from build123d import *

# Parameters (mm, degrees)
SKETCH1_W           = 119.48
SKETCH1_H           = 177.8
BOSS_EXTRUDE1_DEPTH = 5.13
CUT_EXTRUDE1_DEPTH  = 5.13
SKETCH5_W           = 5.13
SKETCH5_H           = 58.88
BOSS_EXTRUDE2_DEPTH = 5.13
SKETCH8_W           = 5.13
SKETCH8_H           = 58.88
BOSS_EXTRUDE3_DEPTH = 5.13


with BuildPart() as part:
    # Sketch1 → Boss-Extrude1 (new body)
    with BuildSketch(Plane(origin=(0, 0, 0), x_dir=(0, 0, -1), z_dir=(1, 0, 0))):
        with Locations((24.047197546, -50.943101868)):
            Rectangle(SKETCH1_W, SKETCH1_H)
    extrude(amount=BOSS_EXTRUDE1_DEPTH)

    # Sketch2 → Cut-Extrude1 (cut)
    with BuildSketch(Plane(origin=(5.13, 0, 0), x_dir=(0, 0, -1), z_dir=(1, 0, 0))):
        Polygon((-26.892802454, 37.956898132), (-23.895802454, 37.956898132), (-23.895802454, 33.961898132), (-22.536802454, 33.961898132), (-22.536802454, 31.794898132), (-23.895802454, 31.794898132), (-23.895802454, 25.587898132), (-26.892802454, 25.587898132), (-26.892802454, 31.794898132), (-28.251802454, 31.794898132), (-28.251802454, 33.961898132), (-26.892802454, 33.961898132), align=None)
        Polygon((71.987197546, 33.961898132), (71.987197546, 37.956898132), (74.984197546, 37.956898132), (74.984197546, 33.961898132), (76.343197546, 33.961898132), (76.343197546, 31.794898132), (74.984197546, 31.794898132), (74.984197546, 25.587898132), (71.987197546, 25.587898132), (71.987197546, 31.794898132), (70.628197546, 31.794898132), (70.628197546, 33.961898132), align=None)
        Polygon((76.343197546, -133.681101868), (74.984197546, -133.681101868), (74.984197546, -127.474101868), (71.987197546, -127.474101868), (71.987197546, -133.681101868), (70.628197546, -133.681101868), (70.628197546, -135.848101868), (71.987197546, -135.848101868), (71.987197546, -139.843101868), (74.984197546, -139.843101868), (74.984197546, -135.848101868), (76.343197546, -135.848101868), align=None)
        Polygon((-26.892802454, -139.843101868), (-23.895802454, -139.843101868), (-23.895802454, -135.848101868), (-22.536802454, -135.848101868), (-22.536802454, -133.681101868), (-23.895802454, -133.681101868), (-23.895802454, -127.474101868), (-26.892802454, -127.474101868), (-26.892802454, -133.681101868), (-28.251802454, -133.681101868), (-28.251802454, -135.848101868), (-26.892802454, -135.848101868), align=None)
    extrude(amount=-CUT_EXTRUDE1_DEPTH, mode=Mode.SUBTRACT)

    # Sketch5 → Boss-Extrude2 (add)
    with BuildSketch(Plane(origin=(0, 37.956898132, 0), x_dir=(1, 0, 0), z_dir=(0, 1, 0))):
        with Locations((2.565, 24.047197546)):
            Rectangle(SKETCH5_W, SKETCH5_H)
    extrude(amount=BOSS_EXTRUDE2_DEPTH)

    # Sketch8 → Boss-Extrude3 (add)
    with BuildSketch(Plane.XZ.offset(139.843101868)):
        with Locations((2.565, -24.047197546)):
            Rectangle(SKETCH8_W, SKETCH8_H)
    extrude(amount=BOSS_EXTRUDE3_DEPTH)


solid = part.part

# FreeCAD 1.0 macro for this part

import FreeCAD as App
import Part
import Sketcher

V = App.Vector
Q = App.Units.Quantity

doc = App.newDocument("Part")
body = doc.addObject("PartDesign::Body", "Body")

# Sketch on YZ plane
sketch1 = body.newObject("Sketcher::SketchObject", "Sketch")
sketch1.AttachmentSupport = (doc.getObject("YZ_Plane"), [""])
sketch1.MapMode = "FlatFace"
sketch1.addGeometry(Part.LineSegment(V(38, 36, 0), V(-140, 36, 0)), False)
sketch1.addGeometry(Part.LineSegment(V(-140, 36, 0), V(-140, -84, 0)), False)
sketch1.addGeometry(Part.LineSegment(V(-140, -84, 0), V(38, -84, 0)), False)
sketch1.addGeometry(Part.LineSegment(V(38, -84, 0), V(38, 36, 0)), False)
sketch1.addConstraint(Sketcher.Constraint("Coincident", 0, 2, 1, 1))
sketch1.addConstraint(Sketcher.Constraint("Coincident", 1, 2, 2, 1))
sketch1.addConstraint(Sketcher.Constraint("Coincident", 2, 2, 3, 1))
sketch1.addConstraint(Sketcher.Constraint("Coincident", 3, 2, 0, 1))
sketch1.addConstraint(Sketcher.Constraint("Horizontal", 0))
sketch1.addConstraint(Sketcher.Constraint("Vertical", 1))
sketch1.addConstraint(Sketcher.Constraint("Horizontal", 2))
sketch1.addConstraint(Sketcher.Constraint("Vertical", 3))
sketch1.addConstraint(Sketcher.Constraint("DistanceX", 0, 2, 0, 1, Q("7 in")))
sketch1.addConstraint(Sketcher.Constraint("DistanceY", 1, 2, 1, 1, 119.48))
sketch1.addConstraint(Sketcher.Constraint("DistanceX", 0, 2, -1, 1, 139.843102))
sketch1.addConstraint(Sketcher.Constraint("DistanceY", -1, 1, 0, 2, 35.692802))
pad1 = body.newObject("PartDesign::Pad", "Pad")
pad1.Profile = sketch1
pad1.Length = 5.13

# Sketch on YZ plane
sketch2 = body.newObject("Sketcher::SketchObject", "Sketch001")
sketch2.AttachmentSupport = (doc.getObject("YZ_Plane"), [""])
sketch2.MapMode = "FlatFace"
sketch2.AttachmentOffset = App.Placement(V(0, 0, 5.13), App.Rotation())
sketch2.addGeometry(Part.LineSegment(V(38, 23.9, 0), V(38, 26.9, 0)), False)
sketch2.addGeometry(Part.LineSegment(V(38, 26.9, 0), V(34, 26.9, 0)), False)
sketch2.addGeometry(Part.LineSegment(V(34, 26.9, 0), V(34, 28.3, 0)), False)
sketch2.addGeometry(Part.LineSegment(V(34, 28.3, 0), V(31.8, 28.3, 0)), False)
sketch2.addGeometry(Part.LineSegment(V(31.8, 28.3, 0), V(31.8, 26.9, 0)), False)
sketch2.addGeometry(Part.LineSegment(V(31.8, 26.9, 0), V(25.6, 26.9, 0)), False)
sketch2.addGeometry(Part.LineSegment(V(25.6, 26.9, 0), V(25.6, 23.9, 0)), False)
sketch2.addGeometry(Part.LineSegment(V(25.6, 23.9, 0), V(31.8, 23.9, 0)), False)
sketch2.addGeometry(Part.LineSegment(V(31.8, 23.9, 0), V(31.8, 22.5, 0)), False)
sketch2.addGeometry(Part.LineSegment(V(31.8, 22.5, 0), V(34, 22.5, 0)), False)
sketch2.addGeometry(Part.LineSegment(V(34, 22.5, 0), V(34, 23.9, 0)), False)
sketch2.addGeometry(Part.LineSegment(V(34, 23.9, 0), V(38, 23.9, 0)), False)
sketch2.addGeometry(Part.LineSegment(V(38, -72, 0), V(34, -72, 0)), False)
sketch2.addGeometry(Part.LineSegment(V(34, -72, 0), V(34, -70.6, 0)), False)
sketch2.addGeometry(Part.LineSegment(V(34, -70.6, 0), V(31.8, -70.6, 0)), False)
sketch2.addGeometry(Part.LineSegment(V(31.8, -70.6, 0), V(31.8, -72, 0)), False)
sketch2.addGeometry(Part.LineSegment(V(31.8, -72, 0), V(25.6, -72, 0)), False)
sketch2.addGeometry(Part.LineSegment(V(25.6, -72, 0), V(25.6, -75, 0)), False)
sketch2.addGeometry(Part.LineSegment(V(25.6, -75, 0), V(31.8, -75, 0)), False)
sketch2.addGeometry(Part.LineSegment(V(31.8, -75, 0), V(31.8, -76.3, 0)), False)
sketch2.addGeometry(Part.LineSegment(V(31.8, -76.3, 0), V(34, -76.3, 0)), False)
sketch2.addGeometry(Part.LineSegment(V(34, -76.3, 0), V(34, -75, 0)), False)
sketch2.addGeometry(Part.LineSegment(V(34, -75, 0), V(38, -75, 0)), False)
sketch2.addGeometry(Part.LineSegment(V(38, -75, 0), V(38, -72, 0)), False)
sketch2.addGeometry(Part.LineSegment(V(-133.7, -76.3, 0), V(-133.7, -75, 0)), False)
sketch2.addGeometry(Part.LineSegment(V(-133.7, -75, 0), V(-127.5, -75, 0)), False)
sketch2.addGeometry(Part.LineSegment(V(-127.5, -75, 0), V(-127.5, -72, 0)), False)
sketch2.addGeometry(Part.LineSegment(V(-127.5, -72, 0), V(-133.7, -72, 0)), False)
sketch2.addGeometry(Part.LineSegment(V(-133.7, -72, 0), V(-133.7, -70.6, 0)), False)
sketch2.addGeometry(Part.LineSegment(V(-133.7, -70.6, 0), V(-135.8, -70.6, 0)), False)
sketch2.addGeometry(Part.LineSegment(V(-135.8, -70.6, 0), V(-135.8, -72, 0)), False)
sketch2.addGeometry(Part.LineSegment(V(-135.8, -72, 0), V(-139.8, -72, 0)), False)
sketch2.addGeometry(Part.LineSegment(V(-139.8, -72, 0), V(-139.8, -75, 0)), False)
sketch2.addGeometry(Part.LineSegment(V(-139.8, -75, 0), V(-135.8, -75, 0)), False)
sketch2.addGeometry(Part.LineSegment(V(-135.8, -75, 0), V(-135.8, -76.3, 0)), False)
sketch2.addGeometry(Part.LineSegment(V(-135.8, -76.3, 0), V(-133.7, -76.3, 0)), False)
sketch2.addGeometry(Part.LineSegment(V(-139.8, 26.9, 0), V(-139.8, 23.9, 0)), False)
sketch2.addGeometry(Part.LineSegment(V(-139.8, 23.9, 0), V(-135.8, 23.9, 0)), False)
sketch2.addGeometry(Part.LineSegment(V(-135.8, 23.9, 0), V(-135.8, 22.5, 0)), False)
sketch2.addGeometry(Part.LineSegment(V(-135.8, 22.5, 0), V(-133.7, 22.5, 0)), False)
sketch2.addGeometry(Part.LineSegment(V(-133.7, 22.5, 0), V(-133.7, 23.9, 0)), False)
sketch2.addGeometry(Part.LineSegment(V(-133.7, 23.9, 0), V(-127.5, 23.9, 0)), False)
sketch2.addGeometry(Part.LineSegment(V(-127.5, 23.9, 0), V(-127.5, 26.9, 0)), False)
sketch2.addGeometry(Part.LineSegment(V(-127.5, 26.9, 0), V(-133.7, 26.9, 0)), False)
sketch2.addGeometry(Part.LineSegment(V(-133.7, 26.9, 0), V(-133.7, 28.3, 0)), False)
sketch2.addGeometry(Part.LineSegment(V(-133.7, 28.3, 0), V(-135.8, 28.3, 0)), False)
sketch2.addGeometry(Part.LineSegment(V(-135.8, 28.3, 0), V(-135.8, 26.9, 0)), False)
sketch2.addGeometry(Part.LineSegment(V(-135.8, 26.9, 0), V(-139.8, 26.9, 0)), False)
sketch2.addConstraint(Sketcher.Constraint("Coincident", 0, 2, 1, 1))
sketch2.addConstraint(Sketcher.Constraint("Coincident", 1, 2, 2, 1))
sketch2.addConstraint(Sketcher.Constraint("Coincident", 2, 2, 3, 1))
sketch2.addConstraint(Sketcher.Constraint("Coincident", 3, 2, 4, 1))
sketch2.addConstraint(Sketcher.Constraint("Coincident", 4, 2, 5, 1))
sketch2.addConstraint(Sketcher.Constraint("Coincident", 5, 2, 6, 1))
sketch2.addConstraint(Sketcher.Constraint("Coincident", 6, 2, 7, 1))
sketch2.addConstraint(Sketcher.Constraint("Coincident", 7, 2, 8, 1))
sketch2.addConstraint(Sketcher.Constraint("Coincident", 8, 2, 9, 1))
sketch2.addConstraint(Sketcher.Constraint("Coincident", 9, 2, 10, 1))
sketch2.addConstraint(Sketcher.Constraint("Coincident", 10, 2, 11, 1))
sketch2.addConstraint(Sketcher.Constraint("Coincident", 11, 2, 0, 1))
sketch2.addConstraint(Sketcher.Constraint("Coincident", 12, 2, 13, 1))
sketch2.addConstraint(Sketcher.Constraint("Coincident", 13, 2, 14, 1))
sketch2.addConstraint(Sketcher.Constraint("Coincident", 14, 2, 15, 1))
sketch2.addConstraint(Sketcher.Constraint("Coincident", 15, 2, 16, 1))
sketch2.addConstraint(Sketcher.Constraint("Coincident", 16, 2, 17, 1))
sketch2.addConstraint(Sketcher.Constraint("Coincident", 17, 2, 18, 1))
sketch2.addConstraint(Sketcher.Constraint("Coincident", 18, 2, 19, 1))
sketch2.addConstraint(Sketcher.Constraint("Coincident", 19, 2, 20, 1))
sketch2.addConstraint(Sketcher.Constraint("Coincident", 20, 2, 21, 1))
sketch2.addConstraint(Sketcher.Constraint("Coincident", 21, 2, 22, 1))
sketch2.addConstraint(Sketcher.Constraint("Coincident", 22, 2, 23, 1))
sketch2.addConstraint(Sketcher.Constraint("Coincident", 23, 2, 12, 1))
sketch2.addConstraint(Sketcher.Constraint("Coincident", 24, 2, 25, 1))
sketch2.addConstraint(Sketcher.Constraint("Coincident", 25, 2, 26, 1))
sketch2.addConstraint(Sketcher.Constraint("Coincident", 26, 2, 27, 1))
sketch2.addConstraint(Sketcher.Constraint("Coincident", 27, 2, 28, 1))
sketch2.addConstraint(Sketcher.Constraint("Coincident", 28, 2, 29, 1))
sketch2.addConstraint(Sketcher.Constraint("Coincident", 29, 2, 30, 1))
sketch2.addConstraint(Sketcher.Constraint("Coincident", 30, 2, 31, 1))
sketch2.addConstraint(Sketcher.Constraint("Coincident", 31, 2, 32, 1))
sketch2.addConstraint(Sketcher.Constraint("Coincident", 32, 2, 33, 1))
sketch2.addConstraint(Sketcher.Constraint("Coincident", 33, 2, 34, 1))
sketch2.addConstraint(Sketcher.Constraint("Coincident", 34, 2, 35, 1))
sketch2.addConstraint(Sketcher.Constraint("Coincident", 35, 2, 24, 1))
sketch2.addConstraint(Sketcher.Constraint("Coincident", 36, 2, 37, 1))
sketch2.addConstraint(Sketcher.Constraint("Coincident", 37, 2, 38, 1))
sketch2.addConstraint(Sketcher.Constraint("Coincident", 38, 2, 39, 1))
sketch2.addConstraint(Sketcher.Constraint("Coincident", 39, 2, 40, 1))
sketch2.addConstraint(Sketcher.Constraint("Coincident", 40, 2, 41, 1))
sketch2.addConstraint(Sketcher.Constraint("Coincident", 41, 2, 42, 1))
sketch2.addConstraint(Sketcher.Constraint("Coincident", 42, 2, 43, 1))
sketch2.addConstraint(Sketcher.Constraint("Coincident", 43, 2, 44, 1))
sketch2.addConstraint(Sketcher.Constraint("Coincident", 44, 2, 45, 1))
sketch2.addConstraint(Sketcher.Constraint("Coincident", 45, 2, 46, 1))
sketch2.addConstraint(Sketcher.Constraint("Coincident", 46, 2, 47, 1))
sketch2.addConstraint(Sketcher.Constraint("Coincident", 47, 2, 36, 1))
sketch2.addConstraint(Sketcher.Constraint("Vertical", 0))
sketch2.addConstraint(Sketcher.Constraint("Horizontal", 1))
sketch2.addConstraint(Sketcher.Constraint("Vertical", 2))
sketch2.addConstraint(Sketcher.Constraint("Horizontal", 3))
sketch2.addConstraint(Sketcher.Constraint("Vertical", 4))
sketch2.addConstraint(Sketcher.Constraint("Horizontal", 5))
sketch2.addConstraint(Sketcher.Constraint("Vertical", 6))
sketch2.addConstraint(Sketcher.Constraint("Horizontal", 7))
sketch2.addConstraint(Sketcher.Constraint("Vertical", 8))
sketch2.addConstraint(Sketcher.Constraint("Horizontal", 9))
sketch2.addConstraint(Sketcher.Constraint("Vertical", 10))
sketch2.addConstraint(Sketcher.Constraint("Horizontal", 11))
sketch2.addConstraint(Sketcher.Constraint("Horizontal", 12))
sketch2.addConstraint(Sketcher.Constraint("Vertical", 13))
sketch2.addConstraint(Sketcher.Constraint("Horizontal", 14))
sketch2.addConstraint(Sketcher.Constraint("Vertical", 15))
sketch2.addConstraint(Sketcher.Constraint("Horizontal", 16))
sketch2.addConstraint(Sketcher.Constraint("Vertical", 17))
sketch2.addConstraint(Sketcher.Constraint("Horizontal", 18))
sketch2.addConstraint(Sketcher.Constraint("Vertical", 19))
sketch2.addConstraint(Sketcher.Constraint("Horizontal", 20))
sketch2.addConstraint(Sketcher.Constraint("Vertical", 21))
sketch2.addConstraint(Sketcher.Constraint("Horizontal", 22))
sketch2.addConstraint(Sketcher.Constraint("Vertical", 23))
sketch2.addConstraint(Sketcher.Constraint("Vertical", 24))
sketch2.addConstraint(Sketcher.Constraint("Horizontal", 25))
sketch2.addConstraint(Sketcher.Constraint("Vertical", 26))
sketch2.addConstraint(Sketcher.Constraint("Horizontal", 27))
sketch2.addConstraint(Sketcher.Constraint("Vertical", 28))
sketch2.addConstraint(Sketcher.Constraint("Horizontal", 29))
sketch2.addConstraint(Sketcher.Constraint("Vertical", 30))
sketch2.addConstraint(Sketcher.Constraint("Horizontal", 31))
sketch2.addConstraint(Sketcher.Constraint("Vertical", 32))
sketch2.addConstraint(Sketcher.Constraint("Horizontal", 33))
sketch2.addConstraint(Sketcher.Constraint("Vertical", 34))
sketch2.addConstraint(Sketcher.Constraint("Horizontal", 35))
sketch2.addConstraint(Sketcher.Constraint("Vertical", 36))
sketch2.addConstraint(Sketcher.Constraint("Horizontal", 37))
sketch2.addConstraint(Sketcher.Constraint("Vertical", 38))
sketch2.addConstraint(Sketcher.Constraint("Horizontal", 39))
sketch2.addConstraint(Sketcher.Constraint("Vertical", 40))
sketch2.addConstraint(Sketcher.Constraint("Horizontal", 41))
sketch2.addConstraint(Sketcher.Constraint("Vertical", 42))
sketch2.addConstraint(Sketcher.Constraint("Horizontal", 43))
sketch2.addConstraint(Sketcher.Constraint("Vertical", 44))
sketch2.addConstraint(Sketcher.Constraint("Horizontal", 45))
sketch2.addConstraint(Sketcher.Constraint("Vertical", 46))
sketch2.addConstraint(Sketcher.Constraint("Horizontal", 47))
sketch2.addConstraint(Sketcher.Constraint("Horizontal", 1, 2, 4, 2))
sketch2.addConstraint(Sketcher.Constraint("Horizontal", 7, 2, 10, 2))
sketch2.addConstraint(Sketcher.Constraint("Horizontal", 12, 2, 15, 2))
sketch2.addConstraint(Sketcher.Constraint("Horizontal", 18, 2, 21, 2))
sketch2.addConstraint(Sketcher.Constraint("Horizontal", 22, 2, 24, 2))
sketch2.addConstraint(Sketcher.Constraint("Horizontal", 23, 2, 26, 2))
sketch2.addConstraint(Sketcher.Constraint("Horizontal", 14, 2, 28, 2))
sketch2.addConstraint(Sketcher.Constraint("Horizontal", 27, 2, 30, 2))
sketch2.addConstraint(Sketcher.Constraint("Horizontal", 25, 2, 32, 2))
sketch2.addConstraint(Sketcher.Constraint("Horizontal", 20, 2, 34, 2))
sketch2.addConstraint(Sketcher.Constraint("Horizontal", 11, 2, 36, 2))
sketch2.addConstraint(Sketcher.Constraint("Horizontal", 9, 2, 38, 2))
sketch2.addConstraint(Sketcher.Constraint("Horizontal", 37, 2, 40, 2))
sketch2.addConstraint(Sketcher.Constraint("Horizontal", 5, 2, 42, 2))
sketch2.addConstraint(Sketcher.Constraint("Horizontal", 3, 2, 44, 2))
sketch2.addConstraint(Sketcher.Constraint("Horizontal", 43, 2, 46, 2))
sketch2.addConstraint(Sketcher.Constraint("Vertical", 4, 2, 7, 2))
sketch2.addConstraint(Sketcher.Constraint("Vertical", 2, 2, 9, 2))
sketch2.addConstraint(Sketcher.Constraint("Vertical", 10, 2, 12, 2))
sketch2.addConstraint(Sketcher.Constraint("Vertical", 8, 2, 14, 2))
sketch2.addConstraint(Sketcher.Constraint("Vertical", 6, 2, 16, 2))
sketch2.addConstraint(Sketcher.Constraint("Vertical", 15, 2, 18, 2))
sketch2.addConstraint(Sketcher.Constraint("Vertical", 13, 2, 20, 2))
sketch2.addConstraint(Sketcher.Constraint("Vertical", 11, 2, 22, 2))
sketch2.addConstraint(Sketcher.Constraint("Vertical", 24, 2, 27, 2))
sketch2.addConstraint(Sketcher.Constraint("Vertical", 30, 2, 33, 2))
sketch2.addConstraint(Sketcher.Constraint("Vertical", 32, 2, 36, 2))
sketch2.addConstraint(Sketcher.Constraint("Vertical", 34, 2, 37, 2))
sketch2.addConstraint(Sketcher.Constraint("Vertical", 35, 2, 39, 2))
sketch2.addConstraint(Sketcher.Constraint("Vertical", 26, 2, 41, 2))
sketch2.addConstraint(Sketcher.Constraint("Vertical", 40, 2, 43, 2))
sketch2.addConstraint(Sketcher.Constraint("Vertical", 38, 2, 45, 2))
sketch2.addConstraint(Sketcher.Constraint("Equal", 18, 25))
sketch2.addConstraint(Sketcher.Constraint("Equal", 20, 29))
sketch2.addConstraint(Sketcher.Constraint("Equal", 22, 31))
sketch2.addConstraint(Sketcher.Constraint("Equal", 4, 8))
sketch2.addConstraint(Sketcher.Constraint("Equal", 10, 13))
sketch2.addConstraint(Sketcher.Constraint("Equal", 6, 17))
sketch2.addConstraint(Sketcher.Constraint("Equal", 15, 19))
sketch2.addConstraint(Sketcher.Constraint("DistanceY", 8, 2, 3, 2, Q("0.225 in")))
sketch2.addConstraint(Sketcher.Constraint("DistanceX", 1, 2, 1, 1, 3.995))
sketch2.addConstraint(Sketcher.Constraint("DistanceX", 3, 2, 3, 1, 2.167))
sketch2.addConstraint(Sketcher.Constraint("DistanceX", 5, 2, 5, 1, 6.207))
sketch2.addConstraint(Sketcher.Constraint("DistanceY", 0, 1, 0, 2, 2.997))
sketch2.addConstraint(Sketcher.Constraint("DistanceX", -1, 1, 0, 2, 37.956898))
sketch2.addConstraint(Sketcher.Constraint("DistanceX", 24, 2, -1, 1, 133.681102))
sketch2.addConstraint(Sketcher.Constraint("DistanceY", 12, 2, 9, 2, 94.524))
sketch2.addConstraint(Sketcher.Constraint("DistanceY", -1, 1, 0, 2, 26.892802))
pocket1 = body.newObject("PartDesign::Pocket", "Pocket")
pocket1.Profile = sketch2
pocket1.Length = 5.13

# Sketch on XZ plane
sketch3 = body.newObject("Sketcher::SketchObject", "Sketch002")
sketch3.AttachmentSupport = (doc.getObject("XZ_Plane"), [""])
sketch3.MapMode = "FlatFace"
sketch3.AttachmentOffset = App.Placement(V(0, 0, -37.956898), App.Rotation())
sketch3.addGeometry(Part.LineSegment(V(0, -53, 0), V(0, 5, 0)), False)
sketch3.addGeometry(Part.LineSegment(V(0, 5, 0), V(5, 5, 0)), False)
sketch3.addGeometry(Part.LineSegment(V(5, 5, 0), V(5, -53, 0)), False)
sketch3.addGeometry(Part.LineSegment(V(5, -53, 0), V(0, -53, 0)), False)
sketch3.addConstraint(Sketcher.Constraint("Coincident", 0, 2, 1, 1))
sketch3.addConstraint(Sketcher.Constraint("Coincident", 1, 2, 2, 1))
sketch3.addConstraint(Sketcher.Constraint("Coincident", 2, 2, 3, 1))
sketch3.addConstraint(Sketcher.Constraint("Coincident", 3, 2, 0, 1))
sketch3.addConstraint(Sketcher.Constraint("Vertical", 0))
sketch3.addConstraint(Sketcher.Constraint("Horizontal", 1))
sketch3.addConstraint(Sketcher.Constraint("Vertical", 2))
sketch3.addConstraint(Sketcher.Constraint("Horizontal", 3))
sketch3.addConstraint(Sketcher.Constraint("PointOnObject", 0, 2, -2))
sketch3.addConstraint(Sketcher.Constraint("DistanceX", 1, 1, 1, 2, 5.13))
sketch3.addConstraint(Sketcher.Constraint("DistanceY", 0, 1, 0, 2, 58.88))
sketch3.addConstraint(Sketcher.Constraint("DistanceY", -1, 1, 0, 2, 5.392802))
pad2 = body.newObject("PartDesign::Pad", "Pad001")
pad2.Profile = sketch3
pad2.Length = 5.13
pad2.Reversed = True

# Sketch on XZ plane
sketch4 = body.newObject("Sketcher::SketchObject", "Sketch003")
sketch4.AttachmentSupport = (doc.getObject("XZ_Plane"), [""])
sketch4.MapMode = "FlatFace"
sketch4.AttachmentOffset = App.Placement(V(0, 0, 139.843102), App.Rotation())
sketch4.addGeometry(Part.LineSegment(V(0, 5, 0), V(0, -53, 0)), False)
sketch4.addGeometry(Part.LineSegment(V(0, -53, 0), V(5, -53, 0)), False)
sketch4.addGeometry(Part.LineSegment(V(5, -53, 0), V(5, 5, 0)), False)
sketch4.addGeometry(Part.LineSegment(V(5, 5, 0), V(0, 5, 0)), False)
sketch4.addConstraint(Sketcher.Constraint("Coincident", 0, 2, 1, 1))
sketch4.addConstraint(Sketcher.Constraint("Coincident", 1, 2, 2, 1))
sketch4.addConstraint(Sketcher.Constraint("Coincident", 2, 2, 3, 1))
sketch4.addConstraint(Sketcher.Constraint("Coincident", 3, 2, 0, 1))
sketch4.addConstraint(Sketcher.Constraint("Vertical", 0))
sketch4.addConstraint(Sketcher.Constraint("Horizontal", 1))
sketch4.addConstraint(Sketcher.Constraint("Vertical", 2))
sketch4.addConstraint(Sketcher.Constraint("Horizontal", 3))
sketch4.addConstraint(Sketcher.Constraint("PointOnObject", 0, 2, -2))
sketch4.addConstraint(Sketcher.Constraint("DistanceX", 1, 1, 1, 2, 5.13))
sketch4.addConstraint(Sketcher.Constraint("DistanceY", 0, 2, 0, 1, 58.88))
sketch4.addConstraint(Sketcher.Constraint("DistanceY", 0, 2, -1, 1, 53.487198))
pad3 = body.newObject("PartDesign::Pad", "Pad002")
pad3.Profile = sketch4
pad3.Length = 5.13

doc.recompute()
